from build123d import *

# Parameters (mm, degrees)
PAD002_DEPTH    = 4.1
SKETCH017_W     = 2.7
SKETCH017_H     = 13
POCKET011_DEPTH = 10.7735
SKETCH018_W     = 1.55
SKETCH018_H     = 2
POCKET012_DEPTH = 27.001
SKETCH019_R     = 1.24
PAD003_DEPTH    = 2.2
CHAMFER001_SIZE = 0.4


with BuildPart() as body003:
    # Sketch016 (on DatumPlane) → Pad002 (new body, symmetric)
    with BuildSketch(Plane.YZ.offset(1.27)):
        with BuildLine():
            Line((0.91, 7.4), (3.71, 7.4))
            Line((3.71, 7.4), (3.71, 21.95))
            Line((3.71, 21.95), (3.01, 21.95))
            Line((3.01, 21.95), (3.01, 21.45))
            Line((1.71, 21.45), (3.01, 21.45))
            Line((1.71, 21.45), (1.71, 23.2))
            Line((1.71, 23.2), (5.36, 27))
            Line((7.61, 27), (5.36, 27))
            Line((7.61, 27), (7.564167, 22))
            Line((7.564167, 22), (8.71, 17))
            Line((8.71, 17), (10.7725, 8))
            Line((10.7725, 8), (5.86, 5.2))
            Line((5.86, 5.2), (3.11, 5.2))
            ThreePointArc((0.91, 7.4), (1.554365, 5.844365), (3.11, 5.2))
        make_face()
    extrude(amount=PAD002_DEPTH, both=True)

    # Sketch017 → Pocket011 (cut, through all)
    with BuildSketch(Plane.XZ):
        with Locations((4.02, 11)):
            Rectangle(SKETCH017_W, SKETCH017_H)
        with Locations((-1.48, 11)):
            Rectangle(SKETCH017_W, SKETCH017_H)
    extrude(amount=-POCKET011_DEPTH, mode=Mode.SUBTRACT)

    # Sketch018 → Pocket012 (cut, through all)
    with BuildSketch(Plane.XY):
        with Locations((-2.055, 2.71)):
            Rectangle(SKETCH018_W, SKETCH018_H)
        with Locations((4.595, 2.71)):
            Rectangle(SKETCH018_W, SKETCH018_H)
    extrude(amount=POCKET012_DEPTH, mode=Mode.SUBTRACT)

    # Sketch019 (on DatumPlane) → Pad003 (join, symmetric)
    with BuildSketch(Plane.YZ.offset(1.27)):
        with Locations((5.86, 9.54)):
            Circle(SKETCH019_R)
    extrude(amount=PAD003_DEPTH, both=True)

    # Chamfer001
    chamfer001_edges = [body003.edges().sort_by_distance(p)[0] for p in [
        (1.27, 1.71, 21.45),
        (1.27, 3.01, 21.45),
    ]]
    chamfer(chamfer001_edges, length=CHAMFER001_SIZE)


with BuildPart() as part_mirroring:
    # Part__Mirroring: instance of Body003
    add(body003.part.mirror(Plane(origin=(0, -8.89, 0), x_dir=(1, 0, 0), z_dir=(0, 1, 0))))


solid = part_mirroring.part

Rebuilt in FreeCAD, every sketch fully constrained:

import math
import FreeCAD as App
import Part
import Sketcher
from FreeCAD import Vector


def edges_at(feature, points):
    """Names of the edges that pass closest to the given points."""
    edges = feature.Shape.Edges
    near = lambda p: min(range(len(edges)), key=lambda i: edges[i].distToShape(Part.Vertex(*p))[0])
    return sorted({f"Edge{near(p) + 1}" for p in points})

doc = App.newDocument("Part")
body = doc.addObject("PartDesign::Body", "Body")

sketch1 = body.newObject("Sketcher::SketchObject", "Sketch")
sketch1.AttachmentSupport = (doc.getObject("YZ_Plane"), [""])
sketch1.MapMode = "FlatFace"
sketch1.AttachmentOffset = App.Placement(Vector(0, 0, 1.27), App.Rotation())
sketch1.addGeometry(Part.LineSegment(Vector(3.7, 7.4, 0), Vector(0.9, 7.4, 0)), False)
sketch1.addGeometry(Part.ArcOfCircle(Part.Circle(Vector(3.1, 7.4, 0), Vector(0, 0, 1), 2.2), math.radians(180), math.radians(270)), False)
sketch1.addGeometry(Part.LineSegment(Vector(3.1, 5.2, 0), Vector(5.9, 5.2, 0)), False)
sketch1.addGeometry(Part.LineSegment(Vector(5.9, 5.2, 0), Vector(10.8, 8, 0)), False)
sketch1.addGeometry(Part.LineSegment(Vector(10.8, 8, 0), Vector(8.7, 17, 0)), False)
sketch1.addGeometry(Part.LineSegment(Vector(8.7, 17, 0), Vector(7.6, 22, 0)), False)
sketch1.addGeometry(Part.LineSegment(Vector(7.6, 22, 0), Vector(7.6, 27, 0)), False)
sketch1.addGeometry(Part.LineSegment(Vector(7.6, 27, 0), Vector(5.4, 27, 0)), False)
sketch1.addGeometry(Part.LineSegment(Vector(5.4, 27, 0), Vector(1.7, 23.2, 0)), False)
sketch1.addGeometry(Part.LineSegment(Vector(1.7, 23.2, 0), Vector(1.7, 21.4, 0)), False)
sketch1.addGeometry(Part.LineSegment(Vector(1.7, 21.4, 0), Vector(3, 21.4, 0)), False)
sketch1.addGeometry(Part.LineSegment(Vector(3, 21.4, 0), Vector(3, 21.9, 0)), False)
sketch1.addGeometry(Part.LineSegment(Vector(3, 21.9, 0), Vector(3.7, 21.9, 0)), False)
sketch1.addGeometry(Part.LineSegment(Vector(3.7, 21.9, 0), Vector(3.7, 7.4, 0)), False)
sketch1.addConstraint(Sketcher.Constraint("Coincident", 0, 2, 1, 1))
sketch1.addConstraint(Sketcher.Constraint("Tangent", 1, 2, 2, 1))
sketch1.addConstraint(Sketcher.Constraint("Coincident", 2, 2, 3, 1))
sketch1.addConstraint(Sketcher.Constraint("Coincident", 3, 2, 4, 1))
sketch1.addConstraint(Sketcher.Constraint("Coincident", 4, 2, 5, 1))
sketch1.addConstraint(Sketcher.Constraint("Coincident", 5, 2, 6, 1))
sketch1.addConstraint(Sketcher.Constraint("Coincident", 6, 2, 7, 1))
sketch1.addConstraint(Sketcher.Constraint("Coincident", 7, 2, 8, 1))
sketch1.addConstraint(Sketcher.Constraint("Coincident", 8, 2, 9, 1))
sketch1.addConstraint(Sketcher.Constraint("Coincident", 9, 2, 10, 1))
sketch1.addConstraint(Sketcher.Constraint("Coincident", 10, 2, 11, 1))
sketch1.addConstraint(Sketcher.Constraint("Coincident", 11, 2, 12, 1))
sketch1.addConstraint(Sketcher.Constraint("Coincident", 12, 2, 13, 1))
sketch1.addConstraint(Sketcher.Constraint("Coincident", 13, 2, 0, 1))
sketch1.addConstraint(Sketcher.Constraint("Horizontal", 0))
sketch1.addConstraint(Sketcher.Constraint("Horizontal", 2))
sketch1.addConstraint(Sketcher.Constraint("Horizontal", 7))
sketch1.addConstraint(Sketcher.Constraint("Vertical", 9))
sketch1.addConstraint(Sketcher.Constraint("Horizontal", 10))
sketch1.addConstraint(Sketcher.Constraint("Vertical", 11))
sketch1.addConstraint(Sketcher.Constraint("Horizontal", 12))
sketch1.addConstraint(Sketcher.Constraint("Vertical", 13))
sketch1.addConstraint(Sketcher.Constraint("Parallel", 4, 5))
sketch1.addConstraint(Sketcher.Constraint("Horizontal", 1, 3, 0, 2))
sketch1.addConstraint(Sketcher.Constraint("Radius", 1, 2.2))
sketch1.addConstraint(Sketcher.Constraint("DistanceX", 0, 2, 0, 1, 2.8))
sketch1.addConstraint(Sketcher.Constraint("DistanceX", 10, 1, 10, 2, 1.3))
sketch1.addConstraint(Sketcher.Constraint("DistanceX", 12, 1, 12, 2, 0.7))
sketch1.addConstraint(Sketcher.Constraint("DistanceY", 11, 1, 11, 2, 0.5))
sketch1.addConstraint(Sketcher.Constraint("DistanceY", -1, 1, 3, 2, 8.0))
sketch1.addConstraint(Sketcher.Constraint("DistanceY", -1, 1, 4, 2, 17.0))
sketch1.addConstraint(Sketcher.Constraint("DistanceY", -1, 1, 5, 2, 22.0))
sketch1.addConstraint(Sketcher.Constraint("DistanceY", -1, 1, 6, 2, 27.0))
sketch1.addConstraint(Sketcher.Constraint("DistanceX", 8, 2, 4, 2, 7.0))
sketch1.addConstraint(Sketcher.Constraint("DistanceX", 2, 1, 2, 2, 2.75))
sketch1.addConstraint(Sketcher.Constraint("DistanceX", 7, 2, 7, 1, 2.25))
sketch1.addConstraint(Sketcher.Constraint("DistanceY", 9, 2, 9, 1, 1.75))
sketch1.addConstraint(Sketcher.Constraint("DistanceY", 13, 2, 13, 1, 14.55))
sketch1.addConstraint(Sketcher.Constraint("DistanceY", -1, 1, 1, 3, 7.4))
sketch1.addConstraint(Sketcher.Constraint("DistanceX", 6, 2, 4, 2, 1.1))
sketch1.addConstraint(Sketcher.Constraint("DistanceX", -1, 1, 1, 3, 3.11))
sketch1.addConstraint(Sketcher.Constraint("DistanceX", -1, 1, 3, 2, 10.7725))
pad1 = body.newObject("PartDesign::Pad", "Pad")
pad1.Profile = sketch1
pad1.Length = 8.2
pad1.Midplane = True

sketch2 = body.newObject("Sketcher::SketchObject", "Sketch001")
sketch2.AttachmentSupport = (doc.getObject("XZ_Plane"), [""])
sketch2.MapMode = "FlatFace"
sketch2.addGeometry(Part.LineSegment(Vector(2.7, 17.5, 0), Vector(2.7, 4.5, 0)), False)
sketch2.addGeometry(Part.LineSegment(Vector(2.7, 4.5, 0), Vector(5.4, 4.5, 0)), False)
sketch2.addGeometry(Part.LineSegment(Vector(5.4, 4.5, 0), Vector(5.4, 17.5, 0)), False)
sketch2.addGeometry(Part.LineSegment(Vector(5.4, 17.5, 0), Vector(2.7, 17.5, 0)), False)
sketch2.addGeometry(Part.LineSegment(Vector(-2.8, 17.5, 0), Vector(-2.8, 4.5, 0)), False)
sketch2.addGeometry(Part.LineSegment(Vector(-2.8, 4.5, 0), Vector(-0.1, 4.5, 0)), False)
sketch2.addGeometry(Part.LineSegment(Vector(-0.1, 4.5, 0), Vector(-0.1, 17.5, 0)), False)
sketch2.addGeometry(Part.LineSegment(Vector(-0.1, 17.5, 0), Vector(-2.8, 17.5, 0)), False)
sketch2.addConstraint(Sketcher.Constraint("Coincident", 0, 2, 1, 1))
sketch2.addConstraint(Sketcher.Constraint("Coincident", 1, 2, 2, 1))
sketch2.addConstraint(Sketcher.Constraint("Coincident", 2, 2, 3, 1))
sketch2.addConstraint(Sketcher.Constraint("Coincident", 3, 2, 0, 1))
sketch2.addConstraint(Sketcher.Constraint("Coincident", 4, 2, 5, 1))
sketch2.addConstraint(Sketcher.Constraint("Coincident", 5, 2, 6, 1))
sketch2.addConstraint(Sketcher.Constraint("Coincident", 6, 2, 7, 1))
sketch2.addConstraint(Sketcher.Constraint("Coincident", 7, 2, 4, 1))
sketch2.addConstraint(Sketcher.Constraint("Vertical", 0))
sketch2.addConstraint(Sketcher.Constraint("Horizontal", 1))
sketch2.addConstraint(Sketcher.Constraint("Vertical", 2))
sketch2.addConstraint(Sketcher.Constraint("Horizontal", 3))
sketch2.addConstraint(Sketcher.Constraint("Vertical", 4))
sketch2.addConstraint(Sketcher.Constraint("Horizontal", 5))
sketch2.addConstraint(Sketcher.Constraint("Vertical", 6))
sketch2.addConstraint(Sketcher.Constraint("Horizontal", 7))
sketch2.addConstraint(Sketcher.Constraint("Horizontal", 1, 2, 4, 2))
sketch2.addConstraint(Sketcher.Constraint("Horizontal", 3, 2, 6, 2))
sketch2.addConstraint(Sketcher.Constraint("Equal", 3, 5))
sketch2.addConstraint(Sketcher.Constraint("DistanceY", 0, 2, 0, 1, 13.0))
sketch2.addConstraint(Sketcher.Constraint("DistanceX", 1, 1, 1, 2, 2.7))
sketch2.addConstraint(Sketcher.Constraint("DistanceY", -1, 1, 0, 2, 4.5))
sketch2.addConstraint(Sketcher.Constraint("DistanceX", 4, 2, 0, 2, 5.5))
sketch2.addConstraint(Sketcher.Constraint("DistanceX", -1, 1, 0, 2, 2.67))
pocket1 = body.newObject("PartDesign::Pocket", "Pocket")
pocket1.Profile = sketch2
pocket1.Type = "ThroughAll"

sketch3 = body.newObject("Sketcher::SketchObject", "Sketch002")
sketch3.AttachmentSupport = (doc.getObject("XY_Plane"), [""])
sketch3.MapMode = "FlatFace"
sketch3.addGeometry(Part.LineSegment(Vector(-2.8, 3.7, 0), Vector(-2.8, 1.7, 0)), False)
sketch3.addGeometry(Part.LineSegment(Vector(-2.8, 1.7, 0), Vector(-1.3, 1.7, 0)), False)
sketch3.addGeometry(Part.LineSegment(Vector(-1.3, 1.7, 0), Vector(-1.3, 3.7, 0)), False)
sketch3.addGeometry(Part.LineSegment(Vector(-1.3, 3.7, 0), Vector(-2.8, 3.7, 0)), False)
sketch3.addGeometry(Part.LineSegment(Vector(3.8, 3.7, 0), Vector(3.8, 1.7, 0)), False)
sketch3.addGeometry(Part.LineSegment(Vector(3.8, 1.7, 0), Vector(5.4, 1.7, 0)), False)
sketch3.addGeometry(Part.LineSegment(Vector(5.4, 1.7, 0), Vector(5.4, 3.7, 0)), False)
sketch3.addGeometry(Part.LineSegment(Vector(5.4, 3.7, 0), Vector(3.8, 3.7, 0)), False)
sketch3.addConstraint(Sketcher.Constraint("Coincident", 0, 2, 1, 1))
sketch3.addConstraint(Sketcher.Constraint("Coincident", 1, 2, 2, 1))
sketch3.addConstraint(Sketcher.Constraint("Coincident", 2, 2, 3, 1))
sketch3.addConstraint(Sketcher.Constraint("Coincident", 3, 2, 0, 1))
sketch3.addConstraint(Sketcher.Constraint("Coincident", 4, 2, 5, 1))
sketch3.addConstraint(Sketcher.Constraint("Coincident", 5, 2, 6, 1))
sketch3.addConstraint(Sketcher.Constraint("Coincident", 6, 2, 7, 1))
sketch3.addConstraint(Sketcher.Constraint("Coincident", 7, 2, 4, 1))
sketch3.addConstraint(Sketcher.Constraint("Vertical", 0))
sketch3.addConstraint(Sketcher.Constraint("Horizontal", 1))
sketch3.addConstraint(Sketcher.Constraint("Vertical", 2))
sketch3.addConstraint(Sketcher.Constraint("Horizontal", 3))
sketch3.addConstraint(Sketcher.Constraint("Vertical", 4))
sketch3.addConstraint(Sketcher.Constraint("Horizontal", 5))
sketch3.addConstraint(Sketcher.Constraint("Vertical", 6))
sketch3.addConstraint(Sketcher.Constraint("Horizontal", 7))
sketch3.addConstraint(Sketcher.Constraint("Horizontal", 1, 2, 4, 2))
sketch3.addConstraint(Sketcher.Constraint("Horizontal", 3, 2, 6, 2))
sketch3.addConstraint(Sketcher.Constraint("Equal", 3, 5))
sketch3.addConstraint(Sketcher.Constraint("DistanceY", 0, 2, 0, 1, 2.0))
sketch3.addConstraint(Sketcher.Constraint("DistanceX", 1, 1, 1, 2, 1.55))
sketch3.addConstraint(Sketcher.Constraint("DistanceX", 1, 2, 4, 2, 5.1))
sketch3.addConstraint(Sketcher.Constraint("DistanceX", 0, 2, -1, 1, 2.83))
sketch3.addConstraint(Sketcher.Constraint("DistanceY", -1, 1, 0, 2, 1.71))
pocket2 = body.newObject("PartDesign::Pocket", "Pocket001")
pocket2.Profile = sketch3
pocket2.Type = "ThroughAll"
pocket2.Reversed = True

sketch4 = body.newObject("Sketcher::SketchObject", "Sketch003")
sketch4.AttachmentSupport = (doc.getObject("YZ_Plane"), [""])
sketch4.MapMode = "FlatFace"
sketch4.AttachmentOffset = App.Placement(Vector(0, 0, 1.27), App.Rotation())
sketch4.addGeometry(Part.Circle(Vector(5.9, 9.5, 0), Vector(0, 0, 1), 1.2), False)
sketch4.addConstraint(Sketcher.Constraint("Diameter", 0, 2.48))
sketch4.addConstraint(Sketcher.Constraint("DistanceX", -1, 1, 0, 3, 5.86))
sketch4.addConstraint(Sketcher.Constraint("DistanceY", -1, 1, 0, 3, 9.54))
pad2 = body.newObject("PartDesign::Pad", "Pad001")
pad2.Profile = sketch4
pad2.Length = 4.4
pad2.Midplane = True
doc.recompute()

chamfer = body.newObject("PartDesign::Chamfer", "Chamfer")
chamfer.Base = (pad2, edges_at(pad2, [(1.27, 1.71, 21.45), (1.27, 3.01, 21.45)]))
chamfer.Size = 0.4
body2 = doc.addObject("PartDesign::Body", "Body001")
doc.recompute()

mirroring = doc.addObject("Part::Mirroring", "Mirroring")
mirroring.Source = body
mirroring.Base = Vector(0, -8.89, 0)
mirroring.Normal = Vector(0, 1, 0)
body2.BaseFeature = mirroring
doc.recompute()
body.Visibility = False
mirroring.Visibility = False

doc.recompute()
